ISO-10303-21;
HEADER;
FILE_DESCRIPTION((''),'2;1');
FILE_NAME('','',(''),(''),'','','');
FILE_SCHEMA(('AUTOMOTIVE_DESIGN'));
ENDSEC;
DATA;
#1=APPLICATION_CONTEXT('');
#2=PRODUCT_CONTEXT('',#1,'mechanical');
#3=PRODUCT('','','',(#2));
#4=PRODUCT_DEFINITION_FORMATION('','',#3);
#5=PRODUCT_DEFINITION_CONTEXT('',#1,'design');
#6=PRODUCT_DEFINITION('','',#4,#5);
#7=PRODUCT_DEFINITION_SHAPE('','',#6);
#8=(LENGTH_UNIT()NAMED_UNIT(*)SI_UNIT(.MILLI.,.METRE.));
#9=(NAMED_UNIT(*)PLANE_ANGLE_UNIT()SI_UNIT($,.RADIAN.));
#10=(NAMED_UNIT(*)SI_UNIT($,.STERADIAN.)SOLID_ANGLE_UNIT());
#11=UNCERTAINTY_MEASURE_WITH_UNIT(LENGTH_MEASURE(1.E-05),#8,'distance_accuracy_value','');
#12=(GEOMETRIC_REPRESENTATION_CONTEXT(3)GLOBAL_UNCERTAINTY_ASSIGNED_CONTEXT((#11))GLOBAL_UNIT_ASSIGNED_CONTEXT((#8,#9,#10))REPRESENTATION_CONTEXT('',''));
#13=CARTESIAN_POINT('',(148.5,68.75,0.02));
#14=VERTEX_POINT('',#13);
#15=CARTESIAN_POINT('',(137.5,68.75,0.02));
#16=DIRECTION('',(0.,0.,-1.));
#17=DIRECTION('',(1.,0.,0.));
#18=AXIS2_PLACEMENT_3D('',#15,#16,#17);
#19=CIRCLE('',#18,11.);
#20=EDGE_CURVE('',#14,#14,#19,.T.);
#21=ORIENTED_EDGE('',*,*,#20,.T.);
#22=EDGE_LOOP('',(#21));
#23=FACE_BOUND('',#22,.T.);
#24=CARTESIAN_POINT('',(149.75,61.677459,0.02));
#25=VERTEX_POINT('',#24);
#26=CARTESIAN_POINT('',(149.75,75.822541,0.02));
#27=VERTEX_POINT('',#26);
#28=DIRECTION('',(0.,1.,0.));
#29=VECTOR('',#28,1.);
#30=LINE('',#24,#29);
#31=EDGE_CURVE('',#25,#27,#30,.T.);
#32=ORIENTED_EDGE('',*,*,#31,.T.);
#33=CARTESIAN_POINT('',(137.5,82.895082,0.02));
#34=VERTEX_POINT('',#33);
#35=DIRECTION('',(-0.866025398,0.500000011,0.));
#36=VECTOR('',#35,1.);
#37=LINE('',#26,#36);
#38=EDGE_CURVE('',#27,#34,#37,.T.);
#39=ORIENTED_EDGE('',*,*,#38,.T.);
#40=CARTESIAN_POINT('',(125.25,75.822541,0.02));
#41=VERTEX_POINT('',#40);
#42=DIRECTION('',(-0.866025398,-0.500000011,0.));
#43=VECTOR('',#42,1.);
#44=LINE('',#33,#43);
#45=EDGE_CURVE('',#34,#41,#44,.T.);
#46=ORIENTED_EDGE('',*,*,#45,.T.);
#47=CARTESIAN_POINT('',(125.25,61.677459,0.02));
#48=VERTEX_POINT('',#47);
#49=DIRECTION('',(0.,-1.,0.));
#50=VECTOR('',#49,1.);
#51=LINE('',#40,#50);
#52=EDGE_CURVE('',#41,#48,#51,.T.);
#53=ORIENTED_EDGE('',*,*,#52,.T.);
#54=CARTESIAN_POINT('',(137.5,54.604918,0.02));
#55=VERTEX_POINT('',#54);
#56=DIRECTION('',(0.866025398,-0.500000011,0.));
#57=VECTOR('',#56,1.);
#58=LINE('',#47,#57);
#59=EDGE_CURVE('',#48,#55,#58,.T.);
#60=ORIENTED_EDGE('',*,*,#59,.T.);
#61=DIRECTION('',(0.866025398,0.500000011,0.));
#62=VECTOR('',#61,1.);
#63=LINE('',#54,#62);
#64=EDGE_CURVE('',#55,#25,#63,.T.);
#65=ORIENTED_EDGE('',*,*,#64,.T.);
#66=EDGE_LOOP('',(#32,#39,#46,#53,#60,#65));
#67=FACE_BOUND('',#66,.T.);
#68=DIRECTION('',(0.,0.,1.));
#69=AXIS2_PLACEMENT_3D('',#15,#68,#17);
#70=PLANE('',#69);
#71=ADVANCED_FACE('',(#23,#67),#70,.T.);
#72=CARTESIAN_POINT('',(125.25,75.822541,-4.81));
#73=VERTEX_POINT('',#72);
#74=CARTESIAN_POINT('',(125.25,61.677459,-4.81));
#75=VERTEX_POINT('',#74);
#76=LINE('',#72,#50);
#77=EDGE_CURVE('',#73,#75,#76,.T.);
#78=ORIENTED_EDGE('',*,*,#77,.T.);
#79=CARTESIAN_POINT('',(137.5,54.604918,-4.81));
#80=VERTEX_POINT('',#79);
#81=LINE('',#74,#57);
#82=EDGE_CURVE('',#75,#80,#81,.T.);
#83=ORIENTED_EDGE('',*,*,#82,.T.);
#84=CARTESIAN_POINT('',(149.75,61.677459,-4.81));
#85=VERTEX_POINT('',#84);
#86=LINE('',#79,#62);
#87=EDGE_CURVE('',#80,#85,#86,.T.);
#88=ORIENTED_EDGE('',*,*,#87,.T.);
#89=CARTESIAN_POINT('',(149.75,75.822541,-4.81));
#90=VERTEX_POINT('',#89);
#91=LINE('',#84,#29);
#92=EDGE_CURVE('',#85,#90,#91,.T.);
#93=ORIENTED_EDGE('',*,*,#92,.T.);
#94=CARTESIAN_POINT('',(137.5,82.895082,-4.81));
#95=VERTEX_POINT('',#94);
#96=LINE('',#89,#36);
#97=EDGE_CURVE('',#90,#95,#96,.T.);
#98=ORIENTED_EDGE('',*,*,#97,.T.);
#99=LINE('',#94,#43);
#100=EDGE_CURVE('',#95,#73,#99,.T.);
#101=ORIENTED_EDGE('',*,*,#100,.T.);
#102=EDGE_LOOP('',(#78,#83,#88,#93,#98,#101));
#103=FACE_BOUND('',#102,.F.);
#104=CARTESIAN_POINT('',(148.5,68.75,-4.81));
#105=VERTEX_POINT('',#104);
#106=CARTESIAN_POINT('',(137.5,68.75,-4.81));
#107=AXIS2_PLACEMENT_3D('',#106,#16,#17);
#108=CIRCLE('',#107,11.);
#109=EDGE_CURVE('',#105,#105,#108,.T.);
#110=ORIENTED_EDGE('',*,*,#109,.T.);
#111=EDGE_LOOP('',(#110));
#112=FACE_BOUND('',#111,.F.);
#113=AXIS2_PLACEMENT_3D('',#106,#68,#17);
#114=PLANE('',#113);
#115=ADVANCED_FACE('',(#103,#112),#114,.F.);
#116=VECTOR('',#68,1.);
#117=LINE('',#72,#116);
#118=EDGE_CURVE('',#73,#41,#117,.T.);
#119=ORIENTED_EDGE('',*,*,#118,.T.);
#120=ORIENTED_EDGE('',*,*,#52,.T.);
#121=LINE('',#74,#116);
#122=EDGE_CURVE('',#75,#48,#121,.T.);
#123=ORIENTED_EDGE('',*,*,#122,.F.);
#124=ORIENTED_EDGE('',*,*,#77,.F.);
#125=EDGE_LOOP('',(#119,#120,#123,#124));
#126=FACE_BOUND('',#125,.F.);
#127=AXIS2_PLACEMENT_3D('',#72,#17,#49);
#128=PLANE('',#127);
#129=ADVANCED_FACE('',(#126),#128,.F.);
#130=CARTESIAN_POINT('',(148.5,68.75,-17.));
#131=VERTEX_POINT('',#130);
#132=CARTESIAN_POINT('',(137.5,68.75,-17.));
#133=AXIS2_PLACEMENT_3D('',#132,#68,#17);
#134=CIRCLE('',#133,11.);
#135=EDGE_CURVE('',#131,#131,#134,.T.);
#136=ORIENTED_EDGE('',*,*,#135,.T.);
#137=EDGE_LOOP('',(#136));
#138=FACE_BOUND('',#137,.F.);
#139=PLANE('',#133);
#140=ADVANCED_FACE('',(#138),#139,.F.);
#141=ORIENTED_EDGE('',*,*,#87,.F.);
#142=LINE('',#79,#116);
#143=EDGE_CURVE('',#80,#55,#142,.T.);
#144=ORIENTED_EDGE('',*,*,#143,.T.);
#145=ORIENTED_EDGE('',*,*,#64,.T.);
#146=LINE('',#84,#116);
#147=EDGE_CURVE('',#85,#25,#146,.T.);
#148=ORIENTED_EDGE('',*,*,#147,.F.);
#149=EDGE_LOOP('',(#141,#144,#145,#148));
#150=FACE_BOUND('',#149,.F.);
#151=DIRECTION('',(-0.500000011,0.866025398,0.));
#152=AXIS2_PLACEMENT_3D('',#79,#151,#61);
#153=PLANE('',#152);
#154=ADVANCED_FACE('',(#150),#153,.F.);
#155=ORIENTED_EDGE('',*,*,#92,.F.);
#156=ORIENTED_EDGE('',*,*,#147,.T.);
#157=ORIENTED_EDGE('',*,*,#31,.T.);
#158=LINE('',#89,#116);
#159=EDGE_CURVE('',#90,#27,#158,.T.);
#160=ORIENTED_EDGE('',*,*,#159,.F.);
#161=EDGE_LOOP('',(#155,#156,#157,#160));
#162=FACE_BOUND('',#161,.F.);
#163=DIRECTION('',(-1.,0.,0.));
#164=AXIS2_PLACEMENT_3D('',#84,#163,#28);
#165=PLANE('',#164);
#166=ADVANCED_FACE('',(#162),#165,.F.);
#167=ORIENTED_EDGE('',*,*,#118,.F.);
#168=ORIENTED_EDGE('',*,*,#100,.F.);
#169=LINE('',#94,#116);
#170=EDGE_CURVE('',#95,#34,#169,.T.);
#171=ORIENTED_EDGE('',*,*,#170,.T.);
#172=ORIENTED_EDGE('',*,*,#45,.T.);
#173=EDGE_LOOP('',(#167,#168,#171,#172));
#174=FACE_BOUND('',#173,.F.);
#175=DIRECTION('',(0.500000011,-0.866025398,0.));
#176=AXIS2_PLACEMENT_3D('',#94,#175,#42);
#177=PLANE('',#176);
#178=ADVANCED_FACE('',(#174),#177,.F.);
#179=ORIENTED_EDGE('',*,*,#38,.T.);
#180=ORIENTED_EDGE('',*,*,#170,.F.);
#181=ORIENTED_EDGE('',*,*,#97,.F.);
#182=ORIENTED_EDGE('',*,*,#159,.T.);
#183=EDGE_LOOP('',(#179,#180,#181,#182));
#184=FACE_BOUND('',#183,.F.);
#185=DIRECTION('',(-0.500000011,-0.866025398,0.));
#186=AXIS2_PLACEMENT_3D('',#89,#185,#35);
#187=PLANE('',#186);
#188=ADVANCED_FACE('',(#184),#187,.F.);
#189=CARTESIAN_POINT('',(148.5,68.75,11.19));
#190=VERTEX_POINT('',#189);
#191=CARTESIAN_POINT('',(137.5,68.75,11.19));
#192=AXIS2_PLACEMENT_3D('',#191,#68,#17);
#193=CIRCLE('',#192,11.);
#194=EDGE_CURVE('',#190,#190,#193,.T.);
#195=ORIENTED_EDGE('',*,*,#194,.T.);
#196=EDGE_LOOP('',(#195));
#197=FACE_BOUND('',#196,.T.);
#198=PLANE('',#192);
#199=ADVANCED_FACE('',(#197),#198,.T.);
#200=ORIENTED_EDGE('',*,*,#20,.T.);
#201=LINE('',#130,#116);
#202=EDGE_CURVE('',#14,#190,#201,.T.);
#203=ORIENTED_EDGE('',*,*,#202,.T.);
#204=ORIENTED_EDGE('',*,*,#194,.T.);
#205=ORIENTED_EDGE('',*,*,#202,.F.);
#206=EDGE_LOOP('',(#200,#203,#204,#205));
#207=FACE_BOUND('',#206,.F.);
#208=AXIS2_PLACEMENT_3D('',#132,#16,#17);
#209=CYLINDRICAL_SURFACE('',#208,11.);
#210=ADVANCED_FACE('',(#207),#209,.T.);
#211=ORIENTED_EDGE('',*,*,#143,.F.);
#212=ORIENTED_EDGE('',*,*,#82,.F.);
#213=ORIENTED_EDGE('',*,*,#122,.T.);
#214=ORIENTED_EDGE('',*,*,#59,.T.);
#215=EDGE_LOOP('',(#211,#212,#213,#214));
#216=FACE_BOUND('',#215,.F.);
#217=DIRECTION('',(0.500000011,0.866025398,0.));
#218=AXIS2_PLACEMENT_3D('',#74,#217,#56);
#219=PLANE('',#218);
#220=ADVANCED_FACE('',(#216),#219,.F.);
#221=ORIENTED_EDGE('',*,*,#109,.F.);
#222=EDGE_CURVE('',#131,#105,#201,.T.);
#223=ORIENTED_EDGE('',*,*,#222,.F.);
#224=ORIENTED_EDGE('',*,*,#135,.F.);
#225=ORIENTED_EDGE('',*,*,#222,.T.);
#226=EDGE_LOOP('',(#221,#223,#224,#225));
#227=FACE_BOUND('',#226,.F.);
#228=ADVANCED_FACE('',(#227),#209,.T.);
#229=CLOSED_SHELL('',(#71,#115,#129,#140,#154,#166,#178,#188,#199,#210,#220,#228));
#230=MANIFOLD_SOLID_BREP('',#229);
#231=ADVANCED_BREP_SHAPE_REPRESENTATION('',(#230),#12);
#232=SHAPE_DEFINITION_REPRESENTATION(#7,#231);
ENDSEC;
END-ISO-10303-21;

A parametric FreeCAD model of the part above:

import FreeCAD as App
import Part
import Sketcher
Q = App.Units.Quantity


def add_polygon(sketch, points):
    """Adds a closed chain of lines whose ends are joined by coincident constraints."""
    first, n = sketch.GeometryCount, len(points)
    for a, b in zip(points, points[1:] + points[:1]):
        sketch.addGeometry(Part.LineSegment(App.Vector(*a, 0), App.Vector(*b, 0)), False)
    for i in range(n):
        sketch.addConstraint(Sketcher.Constraint("Coincident", first + i, 2, first + (i + 1) % n, 1))

doc = App.newDocument("Part")
body = doc.addObject("PartDesign::Body", "Body")

# Sketch on XY plane
sketch1 = body.newObject("Sketcher::SketchObject", "Sketch")
sketch1.AttachmentSupport = (doc.getObject("XY_Plane"), [""])
sketch1.MapMode = "FlatFace"
add_polygon(sketch1, [(12, -7), (12, 7), (0, 14), (-12, 7), (-12, -7), (0, -14)])  # lines 0-5
sketch1.addConstraint(Sketcher.Constraint("Vertical", 0))
sketch1.addConstraint(Sketcher.Constraint("Vertical", 3))
sketch1.addConstraint(Sketcher.Constraint("Symmetric", 0, 2, 3, 2, -1, 1))
sketch1.addConstraint(Sketcher.Constraint("Symmetric", 1, 2, 4, 2, -1, 1))
sketch1.addConstraint(Sketcher.Constraint("PointOnObject", 1, 2, -2))
sketch1.addConstraint(Sketcher.Constraint("Parallel", 2, 5))
sketch1.addConstraint(Sketcher.Constraint("Horizontal", 0, 2, 2, 2))
sketch1.addConstraint(Sketcher.Constraint("Angle", 1, Q("149.999999 deg")))
sketch1.addConstraint(Sketcher.Constraint("DistanceX", 2, 2, 0, 2, Q("24.5 mm")))
sketch1.addConstraint(Sketcher.Constraint("DistanceY", 0, 1, 0, 2, Q("14.145082 mm")))
pad1 = body.newObject("PartDesign::Pad", "Pad")
pad1.Profile = sketch1
pad1.Length = 4.83
body2 = doc.addObject("PartDesign::Body", "Body001")
doc.recompute()

body.Placement = App.Placement(App.Vector(0, 0, 12.19), App.Rotation(App.Vector(0, 0, 1), 0))
boolean = body2.newObject("PartDesign::Boolean", "Boolean")
boolean.Type = "Fuse"
boolean.addObjects([body])
body3 = doc.addObject("PartDesign::Body", "Body002")

# Sketch on XY plane
sketch2 = body3.newObject("Sketcher::SketchObject", "Sketch001")
sketch2.AttachmentSupport = (doc.getObject("XY_Plane002"), [""])
sketch2.MapMode = "FlatFace"
sketch2.addGeometry(Part.Circle(App.Vector(0, 0, 0), App.Vector(0, 0, 1), 11), False)
sketch2.addConstraint(Sketcher.Constraint("Coincident", 0, 3, -1, 1))
sketch2.addConstraint(Sketcher.Constraint("Diameter", 0, Q("22 mm")))
pad2 = body3.newObject("PartDesign::Pad", "Pad001")
pad2.Profile = sketch2
pad2.Length = 28.19
doc.recompute()

boolean2 = body3.newObject("PartDesign::Boolean", "Boolean001")
boolean2.Type = "Fuse"
boolean2.addObjects([body2])
body4 = doc.addObject("PartDesign::Body", "Body003")
doc.recompute()

body3.Placement = App.Placement(App.Vector(137.5, 68.75, -17), App.Rotation(App.Vector(0, 0, 1), 0))
boolean3 = body4.newObject("PartDesign::Boolean", "Boolean002")
boolean3.Type = "Fuse"
boolean3.addObjects([body3])

doc.recompute()
